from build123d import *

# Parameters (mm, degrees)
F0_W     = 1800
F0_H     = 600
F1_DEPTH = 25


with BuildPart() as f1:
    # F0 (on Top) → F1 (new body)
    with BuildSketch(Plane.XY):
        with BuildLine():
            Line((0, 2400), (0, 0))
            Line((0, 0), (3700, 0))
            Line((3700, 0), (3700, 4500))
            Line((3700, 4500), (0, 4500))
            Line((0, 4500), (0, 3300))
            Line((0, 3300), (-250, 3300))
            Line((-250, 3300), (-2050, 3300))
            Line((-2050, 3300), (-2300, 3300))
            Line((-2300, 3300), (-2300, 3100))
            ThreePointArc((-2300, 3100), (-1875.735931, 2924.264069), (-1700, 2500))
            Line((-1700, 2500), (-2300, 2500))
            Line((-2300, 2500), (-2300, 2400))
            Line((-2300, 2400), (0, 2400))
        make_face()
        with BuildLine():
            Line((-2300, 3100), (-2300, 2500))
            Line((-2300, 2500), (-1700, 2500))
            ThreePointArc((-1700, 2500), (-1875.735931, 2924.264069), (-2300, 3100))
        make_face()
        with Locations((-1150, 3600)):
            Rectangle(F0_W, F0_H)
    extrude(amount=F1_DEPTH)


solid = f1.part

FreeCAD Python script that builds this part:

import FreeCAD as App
import Part
import Sketcher
from FreeCAD import Vector
Q = App.Units.Quantity


def add_polygon(sketch, points):
    """Adds a closed chain of lines whose ends are joined by coincident constraints."""
    first, n = sketch.GeometryCount, len(points)
    for a, b in zip(points, points[1:] + points[:1]):
        sketch.addGeometry(Part.LineSegment(App.Vector(*a, 0), App.Vector(*b, 0)), False)
    for i in range(n):
        sketch.addConstraint(Sketcher.Constraint("Coincident", first + i, 2, first + (i + 1) % n, 1))

doc = App.newDocument("Part")
body = doc.addObject("PartDesign::Body", "Body")

sketch1 = doc.addObject("Sketcher::SketchObject", "Sketch")
body.addObject(sketch1)
sketch1.AttachmentSupport = (doc.XY_Plane, [""])
sketch1.MapMode = "FlatFace"
add_polygon(sketch1, [(0, 2400), (0, 0), (3700, 0), (3700, 4500), (0, 4500), (0, 3300), (-250, 3300), (-250, 3900), (-2050, 3900), (-2050, 3300), (-2300, 3300), (-2300, 2400)])
sketch1.addConstraint([
    Sketcher.Constraint("Vertical", 0),
    Sketcher.Constraint("Horizontal", 1),
    Sketcher.Constraint("Vertical", 2),
    Sketcher.Constraint("Horizontal", 3),
    Sketcher.Constraint("Vertical", 4),
    Sketcher.Constraint("Horizontal", 5),
    Sketcher.Constraint("Vertical", 6),
    Sketcher.Constraint("Horizontal", 7),
    Sketcher.Constraint("Vertical", 8),
    Sketcher.Constraint("Horizontal", 9),
    Sketcher.Constraint("Vertical", 10),
    Sketcher.Constraint("Horizontal", 11),
    Sketcher.Constraint("Coincident", 0, 2, -1, 1),
    Sketcher.Constraint("PointOnObject", 3, 2, -2),
    Sketcher.Constraint("Horizontal", 5, 2, 8, 2),
    Sketcher.Constraint("Equal", 5, 9),
    Sketcher.Constraint("DistanceX", 1, 1, 1, 2, Q("3700 mm")),
    Sketcher.Constraint("DistanceX", 5, 2, 5, 1, Q("250 mm")),
    Sketcher.Constraint("DistanceX", 7, 2, 7, 1, Q("1800 mm")),
    Sketcher.Constraint("DistanceY", 0, 2, 0, 1, Q("2400 mm")),
    Sketcher.Constraint("DistanceY", 2, 1, 2, 2, Q("4500 mm")),
    Sketcher.Constraint("DistanceY", 4, 2, 4, 1, Q("1200 mm")),
    Sketcher.Constraint("DistanceY", 6, 1, 6, 2, Q("600 mm")),
])
pad1 = doc.addObject("PartDesign::Pad", "Pad")
body.addObject(pad1)
pad1.Profile = sketch1
pad1.Length = 25

doc.recompute()
